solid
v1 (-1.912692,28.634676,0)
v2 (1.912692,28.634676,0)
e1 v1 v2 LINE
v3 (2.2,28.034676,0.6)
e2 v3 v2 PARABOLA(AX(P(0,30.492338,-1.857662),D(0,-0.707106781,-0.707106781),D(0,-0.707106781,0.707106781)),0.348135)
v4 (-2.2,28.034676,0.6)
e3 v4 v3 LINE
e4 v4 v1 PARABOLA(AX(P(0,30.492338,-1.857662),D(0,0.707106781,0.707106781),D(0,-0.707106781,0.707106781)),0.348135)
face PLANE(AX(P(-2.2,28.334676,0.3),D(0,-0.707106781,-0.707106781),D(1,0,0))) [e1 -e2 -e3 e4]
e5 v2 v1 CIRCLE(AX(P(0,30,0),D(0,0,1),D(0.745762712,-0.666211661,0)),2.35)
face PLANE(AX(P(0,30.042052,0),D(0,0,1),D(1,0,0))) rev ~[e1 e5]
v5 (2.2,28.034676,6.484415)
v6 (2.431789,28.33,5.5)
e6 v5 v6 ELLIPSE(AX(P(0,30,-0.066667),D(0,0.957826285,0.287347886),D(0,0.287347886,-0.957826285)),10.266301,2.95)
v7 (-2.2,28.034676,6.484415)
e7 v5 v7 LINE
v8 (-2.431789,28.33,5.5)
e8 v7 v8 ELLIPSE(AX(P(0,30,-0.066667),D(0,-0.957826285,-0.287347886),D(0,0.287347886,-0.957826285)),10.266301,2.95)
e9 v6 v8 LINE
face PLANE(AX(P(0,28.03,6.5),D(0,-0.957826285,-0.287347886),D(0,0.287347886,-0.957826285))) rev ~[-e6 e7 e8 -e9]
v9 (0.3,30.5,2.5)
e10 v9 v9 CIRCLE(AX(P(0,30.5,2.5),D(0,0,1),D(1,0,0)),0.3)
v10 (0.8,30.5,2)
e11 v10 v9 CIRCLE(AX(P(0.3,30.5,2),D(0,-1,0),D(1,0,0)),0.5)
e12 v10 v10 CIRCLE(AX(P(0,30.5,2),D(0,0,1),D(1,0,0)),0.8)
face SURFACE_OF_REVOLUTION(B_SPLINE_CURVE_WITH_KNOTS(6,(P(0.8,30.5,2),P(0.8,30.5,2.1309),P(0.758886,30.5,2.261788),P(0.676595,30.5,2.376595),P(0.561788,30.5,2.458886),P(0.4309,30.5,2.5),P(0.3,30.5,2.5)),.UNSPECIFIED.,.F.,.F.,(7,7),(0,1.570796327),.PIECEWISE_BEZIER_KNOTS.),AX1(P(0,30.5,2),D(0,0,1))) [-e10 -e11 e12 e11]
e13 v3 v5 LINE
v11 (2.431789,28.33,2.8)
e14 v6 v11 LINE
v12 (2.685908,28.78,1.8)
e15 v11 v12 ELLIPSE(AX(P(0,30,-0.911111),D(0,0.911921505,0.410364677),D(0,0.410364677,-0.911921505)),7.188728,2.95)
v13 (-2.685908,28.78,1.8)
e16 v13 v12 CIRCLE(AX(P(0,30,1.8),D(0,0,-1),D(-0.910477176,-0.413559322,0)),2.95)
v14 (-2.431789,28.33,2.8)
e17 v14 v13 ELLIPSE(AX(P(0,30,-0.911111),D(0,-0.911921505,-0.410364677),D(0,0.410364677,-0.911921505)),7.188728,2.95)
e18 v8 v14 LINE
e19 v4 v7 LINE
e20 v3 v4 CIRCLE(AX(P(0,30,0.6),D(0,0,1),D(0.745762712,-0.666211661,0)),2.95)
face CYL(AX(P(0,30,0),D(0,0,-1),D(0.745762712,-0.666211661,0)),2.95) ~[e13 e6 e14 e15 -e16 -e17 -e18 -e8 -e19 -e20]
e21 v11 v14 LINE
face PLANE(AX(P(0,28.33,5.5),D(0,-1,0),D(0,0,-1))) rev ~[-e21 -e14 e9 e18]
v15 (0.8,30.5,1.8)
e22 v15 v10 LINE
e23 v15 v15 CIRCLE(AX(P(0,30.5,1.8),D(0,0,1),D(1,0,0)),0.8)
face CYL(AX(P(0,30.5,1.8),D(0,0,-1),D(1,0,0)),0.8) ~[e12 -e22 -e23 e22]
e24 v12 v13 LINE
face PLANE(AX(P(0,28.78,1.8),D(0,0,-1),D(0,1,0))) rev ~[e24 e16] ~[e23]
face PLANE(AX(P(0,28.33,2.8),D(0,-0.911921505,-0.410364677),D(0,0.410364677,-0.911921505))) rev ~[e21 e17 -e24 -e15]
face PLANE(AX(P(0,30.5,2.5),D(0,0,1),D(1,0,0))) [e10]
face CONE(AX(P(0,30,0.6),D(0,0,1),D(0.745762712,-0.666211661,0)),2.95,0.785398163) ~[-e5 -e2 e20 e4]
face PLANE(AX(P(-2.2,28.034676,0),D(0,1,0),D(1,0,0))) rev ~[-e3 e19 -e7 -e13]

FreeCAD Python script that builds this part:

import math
import FreeCAD as App
import Part
import Sketcher
from FreeCAD import Vector


def edges_at(feature, points):
    """Names of the edges that pass closest to the given points."""
    edges = feature.Shape.Edges
    near = lambda p: min(range(len(edges)), key=lambda i: edges[i].distToShape(Part.Vertex(*p))[0])
    return sorted({f"Edge{near(p) + 1}" for p in points})

doc = App.newDocument("Part")
body = doc.addObject("PartDesign::Body", "Body")

# Sketch on XY plane
sketch1 = body.newObject("Sketcher::SketchObject", "Sketch")
sketch1.AttachmentSupport = (doc.getObject("XY_Plane"), [""])
sketch1.MapMode = "FlatFace"
sketch1.addGeometry(Part.ArcOfCircle(Part.Circle(Vector(0, 0, 0), Vector(0, 0, 1), 3), math.radians(-42), math.radians(222)), False)
sketch1.addGeometry(Part.LineSegment(Vector(-2.2, -2, 0), Vector(2.2, -2, 0)), False)
sketch1.addConstraint(Sketcher.Constraint("Coincident", 0, 1, 1, 2))
sketch1.addConstraint(Sketcher.Constraint("Coincident", 1, 1, 0, 2))
sketch1.addConstraint(Sketcher.Constraint("Horizontal", 1))
sketch1.addConstraint(Sketcher.Constraint("Coincident", 0, 3, -1, 1))
sketch1.addConstraint(Sketcher.Constraint("Radius", 0, 2.95))
sketch1.addConstraint(Sketcher.Constraint("DistanceX", 1, 1, 1, 2, 4.4))
pad1 = body.newObject("PartDesign::Pad", "Pad")
pad1.Profile = sketch1
pad1.Length = 6.5

# Sketch on YZ plane
sketch2 = body.newObject("Sketcher::SketchObject", "Sketch001")
sketch2.AttachmentSupport = (doc.getObject("YZ_Plane"), [""])
sketch2.MapMode = "FlatFace"
sketch2.addGeometry(Part.LineSegment(Vector(-2, 6.5, 0), Vector(-1.7, 5.5, 0)), False)
sketch2.addGeometry(Part.LineSegment(Vector(-1.7, 5.5, 0), Vector(-1.7, 2.8, 0)), False)
sketch2.addGeometry(Part.LineSegment(Vector(-1.7, 2.8, 0), Vector(-1.2, 1.8, 0)), False)
sketch2.addGeometry(Part.LineSegment(Vector(-1.2, 1.8, 0), Vector(4, 1.8, 0)), False)
sketch2.addGeometry(Part.LineSegment(Vector(4, 1.8, 0), Vector(4, 6.5, 0)), False)
sketch2.addGeometry(Part.LineSegment(Vector(4, 6.5, 0), Vector(-2, 6.5, 0)), False)
sketch2.addConstraint(Sketcher.Constraint("Coincident", 0, 2, 1, 1))
sketch2.addConstraint(Sketcher.Constraint("Coincident", 1, 2, 2, 1))
sketch2.addConstraint(Sketcher.Constraint("Coincident", 2, 2, 3, 1))
sketch2.addConstraint(Sketcher.Constraint("Coincident", 3, 2, 4, 1))
sketch2.addConstraint(Sketcher.Constraint("Coincident", 4, 2, 5, 1))
sketch2.addConstraint(Sketcher.Constraint("Coincident", 5, 2, 0, 1))
sketch2.addConstraint(Sketcher.Constraint("Vertical", 1))
sketch2.addConstraint(Sketcher.Constraint("Horizontal", 3))
sketch2.addConstraint(Sketcher.Constraint("Vertical", 4))
sketch2.addConstraint(Sketcher.Constraint("Horizontal", 5))
sketch2.addConstraint(Sketcher.Constraint("DistanceY", 1, 2, 1, 1, 2.7))
sketch2.addConstraint(Sketcher.Constraint("DistanceY", 4, 1, 4, 2, 4.7))
sketch2.addConstraint(Sketcher.Constraint("DistanceX", -1, 1, 3, 2, 4.0))
sketch2.addConstraint(Sketcher.Constraint("DistanceY", 2, 2, 1, 2, 1.0))
sketch2.addConstraint(Sketcher.Constraint("DistanceX", 3, 1, 3, 2, 5.22))
sketch2.addConstraint(Sketcher.Constraint("DistanceX", 5, 2, 5, 1, 5.97))
sketch2.addConstraint(Sketcher.Constraint("DistanceY", -1, 1, 0, 2, 5.5))
sketch2.addConstraint(Sketcher.Constraint("DistanceX", 5, 2, 0, 2, 0.3))
pocket1 = body.newObject("PartDesign::Pocket", "Pocket")
pocket1.Profile = sketch2
pocket1.Type = "ThroughAll"
pocket1.Midplane = True

# Sketch on XY plane
sketch3 = body.newObject("Sketcher::SketchObject", "Sketch002")
sketch3.AttachmentSupport = (doc.getObject("XY_Plane"), [""])
sketch3.MapMode = "FlatFace"
sketch3.AttachmentOffset = App.Placement(Vector(0, 0, 1.8), App.Rotation())
sketch3.addGeometry(Part.Circle(Vector(0, 0.5, 0), Vector(0, 0, 1), 0.8), False)
sketch3.addConstraint(Sketcher.Constraint("PointOnObject", 0, 3, -2))
sketch3.addConstraint(Sketcher.Constraint("Diameter", 0, 1.6))
sketch3.addConstraint(Sketcher.Constraint("DistanceY", -1, 1, 0, 3, 0.5))
pad2 = body.newObject("PartDesign::Pad", "Pad001")
pad2.Profile = sketch3
pad2.Length = 0.7
doc.recompute()

fillet = body.newObject("PartDesign::Fillet", "Fillet")
fillet.Base = (pad2, edges_at(pad2, [(-0.8, 0.5, 2.5)]))
fillet.Radius = 0.5
doc.recompute()

chamfer = body.newObject("PartDesign::Chamfer", "Chamfer")
chamfer.Base = (fillet, edges_at(fillet, [(0, 2.95, 0), (0, -1.965, 0)]))
chamfer.Size = 0.6
body2 = doc.addObject("PartDesign::Body", "Body001")
doc.recompute()

body.Placement = App.Placement(Vector(0, 30, 0), App.Rotation(Vector(0, 0, 1), 0))
boolean = body2.newObject("PartDesign::Boolean", "Boolean")
boolean.Type = "Fuse"
boolean.addObjects([body])

doc.recompute()
